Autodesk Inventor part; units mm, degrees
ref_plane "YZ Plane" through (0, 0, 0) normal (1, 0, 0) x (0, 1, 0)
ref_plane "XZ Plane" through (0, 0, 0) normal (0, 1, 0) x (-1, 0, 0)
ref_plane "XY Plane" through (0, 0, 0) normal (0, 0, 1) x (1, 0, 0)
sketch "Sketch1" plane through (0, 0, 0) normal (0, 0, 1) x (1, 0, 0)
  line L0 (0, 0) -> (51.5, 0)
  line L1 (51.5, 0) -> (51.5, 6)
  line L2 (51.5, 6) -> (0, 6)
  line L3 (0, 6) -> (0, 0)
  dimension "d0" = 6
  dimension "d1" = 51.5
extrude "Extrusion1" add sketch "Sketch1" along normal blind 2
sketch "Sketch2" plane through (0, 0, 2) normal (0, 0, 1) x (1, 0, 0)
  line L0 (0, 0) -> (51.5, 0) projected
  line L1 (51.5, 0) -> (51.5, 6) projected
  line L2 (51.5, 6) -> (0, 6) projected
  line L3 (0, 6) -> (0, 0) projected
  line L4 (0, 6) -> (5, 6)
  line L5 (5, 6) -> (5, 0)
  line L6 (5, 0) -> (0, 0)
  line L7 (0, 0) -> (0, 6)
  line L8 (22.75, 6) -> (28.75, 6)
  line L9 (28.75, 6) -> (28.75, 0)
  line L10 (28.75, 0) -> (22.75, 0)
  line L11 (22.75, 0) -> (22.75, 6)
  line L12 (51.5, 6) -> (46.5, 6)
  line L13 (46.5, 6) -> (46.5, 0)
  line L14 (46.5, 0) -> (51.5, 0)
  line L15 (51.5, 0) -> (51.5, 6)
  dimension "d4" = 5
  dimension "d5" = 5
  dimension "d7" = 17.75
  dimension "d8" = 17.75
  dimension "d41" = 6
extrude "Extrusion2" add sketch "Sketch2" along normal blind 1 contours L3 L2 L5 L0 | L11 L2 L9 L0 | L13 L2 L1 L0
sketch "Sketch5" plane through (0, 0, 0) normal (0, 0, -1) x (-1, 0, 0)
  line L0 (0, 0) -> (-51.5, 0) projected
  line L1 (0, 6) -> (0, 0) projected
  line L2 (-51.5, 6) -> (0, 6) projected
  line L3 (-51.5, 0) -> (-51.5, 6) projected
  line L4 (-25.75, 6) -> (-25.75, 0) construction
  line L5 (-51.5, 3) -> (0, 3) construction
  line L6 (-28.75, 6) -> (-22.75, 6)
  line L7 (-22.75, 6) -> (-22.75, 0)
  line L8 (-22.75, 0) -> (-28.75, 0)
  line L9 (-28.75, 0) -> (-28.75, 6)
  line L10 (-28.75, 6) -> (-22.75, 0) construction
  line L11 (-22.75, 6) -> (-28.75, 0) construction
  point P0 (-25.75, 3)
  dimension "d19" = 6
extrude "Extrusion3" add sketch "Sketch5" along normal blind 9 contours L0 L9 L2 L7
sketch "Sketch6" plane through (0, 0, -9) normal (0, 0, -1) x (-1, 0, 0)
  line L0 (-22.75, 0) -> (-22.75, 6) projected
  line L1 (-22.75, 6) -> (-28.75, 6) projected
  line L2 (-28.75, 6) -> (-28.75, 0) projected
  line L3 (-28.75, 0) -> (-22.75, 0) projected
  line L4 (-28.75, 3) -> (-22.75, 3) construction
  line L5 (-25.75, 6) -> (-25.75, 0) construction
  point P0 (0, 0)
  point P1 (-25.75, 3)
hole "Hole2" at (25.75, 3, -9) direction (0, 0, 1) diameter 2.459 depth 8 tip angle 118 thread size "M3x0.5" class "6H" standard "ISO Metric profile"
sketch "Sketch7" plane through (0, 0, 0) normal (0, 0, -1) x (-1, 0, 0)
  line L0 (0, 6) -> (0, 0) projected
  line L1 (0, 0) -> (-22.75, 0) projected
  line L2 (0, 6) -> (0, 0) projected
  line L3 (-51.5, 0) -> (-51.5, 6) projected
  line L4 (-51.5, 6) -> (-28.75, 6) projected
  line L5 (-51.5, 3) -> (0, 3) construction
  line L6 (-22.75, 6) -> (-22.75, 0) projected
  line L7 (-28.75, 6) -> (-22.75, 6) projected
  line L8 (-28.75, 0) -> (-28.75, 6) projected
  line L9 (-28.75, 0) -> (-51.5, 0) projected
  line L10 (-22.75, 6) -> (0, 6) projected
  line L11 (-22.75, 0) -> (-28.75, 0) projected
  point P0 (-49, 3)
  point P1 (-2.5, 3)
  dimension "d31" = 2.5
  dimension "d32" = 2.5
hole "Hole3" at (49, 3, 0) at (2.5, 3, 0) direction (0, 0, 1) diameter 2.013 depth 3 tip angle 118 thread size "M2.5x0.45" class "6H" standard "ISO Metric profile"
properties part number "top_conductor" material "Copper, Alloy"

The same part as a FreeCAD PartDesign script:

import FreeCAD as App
import Part
import Sketcher
from FreeCAD import Vector
Q = App.Units.Quantity

doc = App.newDocument("Part")
body = doc.addObject("PartDesign::Body", "Body")

# Sketch on XY plane
sketch1 = body.newObject("Sketcher::SketchObject", "Sketch")
sketch1.AttachmentSupport = (doc.getObject("XY_Plane"), [""])
sketch1.MapMode = "FlatFace"
sketch1.addGeometry([
    Part.LineSegment(Vector(0, 6, 0), Vector(0, 0, 0)),
    Part.LineSegment(Vector(0, 0, 0), Vector(51.5, 0, 0)),
    Part.LineSegment(Vector(51.5, 0, 0), Vector(51.5, 6, 0)),
    Part.LineSegment(Vector(51.5, 6, 0), Vector(0, 6, 0)),
], False)
sketch1.addConstraint([
    Sketcher.Constraint("Coincident", 0, 2, 1, 1),
    Sketcher.Constraint("Coincident", 1, 2, 2, 1),
    Sketcher.Constraint("Coincident", 2, 2, 3, 1),
    Sketcher.Constraint("Coincident", 3, 2, 0, 1),
    Sketcher.Constraint("Vertical", 0),
    Sketcher.Constraint("Horizontal", 1),
    Sketcher.Constraint("Vertical", 2),
    Sketcher.Constraint("Horizontal", 3),
    Sketcher.Constraint("Coincident", 0, 2, -1, 1),
    Sketcher.Constraint("DistanceY", 0, 2, 0, 1, Q("6 mm")),
    Sketcher.Constraint("DistanceX", 1, 1, 1, 2, Q("51.5 mm")),
])
pad1 = body.newObject("PartDesign::Pad", "Pad")
pad1.Profile = sketch1
pad1.Length = 2

# Sketch on XY plane
sketch2 = body.newObject("Sketcher::SketchObject", "Sketch001")
sketch2.AttachmentSupport = (doc.getObject("XY_Plane"), [""])
sketch2.MapMode = "FlatFace"
sketch2.AttachmentOffset = App.Placement(Vector(0, 0, 2), App.Rotation())
sketch2.addGeometry([
    Part.LineSegment(Vector(0, 6, 0), Vector(0, 0, 0)),  # 0
    Part.LineSegment(Vector(0, 0, 0), Vector(5, 0, 0)),  # 1
    Part.LineSegment(Vector(5, 0, 0), Vector(5, 6, 0)),  # 2
    Part.LineSegment(Vector(5, 6, 0), Vector(0, 6, 0)),  # 3
    Part.LineSegment(Vector(22.75, 6, 0), Vector(22.75, 0, 0)),  # 4
    Part.LineSegment(Vector(22.75, 0, 0), Vector(28.75, 0, 0)),  # 5
    Part.LineSegment(Vector(28.75, 0, 0), Vector(28.75, 6, 0)),  # 6
    Part.LineSegment(Vector(28.75, 6, 0), Vector(22.75, 6, 0)),  # 7
    Part.LineSegment(Vector(46.5, 6, 0), Vector(46.5, 0, 0)),  # 8
    Part.LineSegment(Vector(46.5, 0, 0), Vector(51.5, 0, 0)),  # 9
    Part.LineSegment(Vector(51.5, 0, 0), Vector(51.5, 6, 0)),  # 10
    Part.LineSegment(Vector(51.5, 6, 0), Vector(46.5, 6, 0)),  # 11
], False)
sketch2.addConstraint([
    Sketcher.Constraint("Coincident", 0, 2, 1, 1),
    Sketcher.Constraint("Coincident", 1, 2, 2, 1),
    Sketcher.Constraint("Coincident", 2, 2, 3, 1),
    Sketcher.Constraint("Coincident", 3, 2, 0, 1),
    Sketcher.Constraint("Coincident", 4, 2, 5, 1),
    Sketcher.Constraint("Coincident", 5, 2, 6, 1),
    Sketcher.Constraint("Coincident", 6, 2, 7, 1),
    Sketcher.Constraint("Coincident", 7, 2, 4, 1),
    Sketcher.Constraint("Coincident", 8, 2, 9, 1),
    Sketcher.Constraint("Coincident", 9, 2, 10, 1),
    Sketcher.Constraint("Coincident", 10, 2, 11, 1),
    Sketcher.Constraint("Coincident", 11, 2, 8, 1),
    Sketcher.Constraint("Vertical", 0),
    Sketcher.Constraint("Horizontal", 1),
    Sketcher.Constraint("Vertical", 2),
    Sketcher.Constraint("Horizontal", 3),
    Sketcher.Constraint("Vertical", 4),
    Sketcher.Constraint("Horizontal", 5),
    Sketcher.Constraint("Vertical", 6),
    Sketcher.Constraint("Horizontal", 7),
    Sketcher.Constraint("Vertical", 8),
    Sketcher.Constraint("Horizontal", 9),
    Sketcher.Constraint("Vertical", 10),
    Sketcher.Constraint("Horizontal", 11),
    Sketcher.Constraint("Coincident", 0, 2, -1, 1),
    Sketcher.Constraint("PointOnObject", 4, 2, -1),
    Sketcher.Constraint("PointOnObject", 8, 2, -1),
    Sketcher.Constraint("Horizontal", 3, 2, 6, 2),
    Sketcher.Constraint("Horizontal", 7, 2, 10, 2),
    Sketcher.Constraint("Equal", 3, 9),
    Sketcher.Constraint("Equal", 7, 0),
    Sketcher.Constraint("DistanceX", 1, 1, 1, 2, Q("5 mm")),
    Sketcher.Constraint("DistanceX", 5, 1, 5, 2, Q("6 mm")),
    Sketcher.Constraint("DistanceX", 1, 2, 4, 2, Q("17.75 mm")),
    Sketcher.Constraint("DistanceX", 5, 2, 8, 2, Q("17.75 mm")),
])
pad2 = body.newObject("PartDesign::Pad", "Pad001")
pad2.Profile = sketch2
pad2.Length = 1

# Sketch on XY plane
sketch3 = body.newObject("Sketcher::SketchObject", "Sketch002")
sketch3.AttachmentSupport = (doc.getObject("XY_Plane"), [""])
sketch3.MapMode = "FlatFace"
sketch3.addGeometry([
    Part.LineSegment(Vector(28.75, 0, 0), Vector(22.75, 0, 0)),
    Part.LineSegment(Vector(22.75, 0, 0), Vector(22.75, 6, 0)),
    Part.LineSegment(Vector(22.75, 6, 0), Vector(28.75, 6, 0)),
    Part.LineSegment(Vector(28.75, 6, 0), Vector(28.75, 0, 0)),
], False)
sketch3.addConstraint([
    Sketcher.Constraint("Coincident", 0, 2, 1, 1),
    Sketcher.Constraint("Coincident", 1, 2, 2, 1),
    Sketcher.Constraint("Coincident", 2, 2, 3, 1),
    Sketcher.Constraint("Coincident", 3, 2, 0, 1),
    Sketcher.Constraint("Horizontal", 0),
    Sketcher.Constraint("Vertical", 1),
    Sketcher.Constraint("Horizontal", 2),
    Sketcher.Constraint("Vertical", 3),
    Sketcher.Constraint("PointOnObject", 0, 2, -1),
    Sketcher.Constraint("Equal", 2, 1),
    Sketcher.Constraint("DistanceX", 0, 2, 0, 1, Q("6 mm")),
    Sketcher.Constraint("DistanceX", -1, 1, 0, 2, Q("22.75 mm")),
])
pad3 = body.newObject("PartDesign::Pad", "Pad002")
pad3.Profile = sketch3
pad3.Length = 9
pad3.Reversed = True

# Sketch on XY plane
sketch4 = body.newObject("Sketcher::SketchObject", "Sketch003")
sketch4.AttachmentSupport = (doc.getObject("XY_Plane"), [""])
sketch4.MapMode = "FlatFace"
sketch4.AttachmentOffset = App.Placement(Vector(0, 0, -9), App.Rotation())
sketch4.addGeometry(Part.Circle(Vector(25.75, 3, 0), Vector(0, 0, 1), 1.2295), False)
sketch4.addConstraint([
    Sketcher.Constraint("Diameter", 0, Q("2.459 mm")),
    Sketcher.Constraint("DistanceY", -1, 1, 0, 3, Q("3 mm")),
    Sketcher.Constraint("DistanceX", -1, 1, 0, 3, Q("25.75 mm")),
])
doc.recompute()
hole = body.newObject("PartDesign::Hole", "Hole")
hole.Profile = sketch4
hole.ThreadType = "None"
hole.Diameter = 2.459
hole.DepthType = "Dimension"
hole.Depth = 8
hole.DrillPoint = "Angled"
hole.DrillPointAngle = 118
hole.Reversed = True

# Sketch on XY plane
sketch5 = body.newObject("Sketcher::SketchObject", "Sketch004")
sketch5.AttachmentSupport = (doc.getObject("XY_Plane"), [""])
sketch5.MapMode = "FlatFace"
sketch5.addGeometry([
    Part.Circle(Vector(49, 3, 0), Vector(0, 0, 1), 1.0065),
    Part.Circle(Vector(2.5, 3, 0), Vector(0, 0, 1), 1.0065),
], False)
sketch5.addConstraint([
    Sketcher.Constraint("Equal", 0, 1),
    Sketcher.Constraint("Horizontal", 0, 3, 1, 3),
    Sketcher.Constraint("Diameter", 0, Q("2.013 mm")),
    Sketcher.Constraint("DistanceX", -1, 1, 0, 3, Q("49 mm")),
    Sketcher.Constraint("DistanceY", -1, 1, 0, 3, Q("3 mm")),
    Sketcher.Constraint("DistanceX", -1, 1, 1, 3, Q("2.5 mm")),
])
doc.recompute()
hole2 = body.newObject("PartDesign::Hole", "Hole001")
hole2.Profile = sketch5
hole2.ThreadType = "None"
hole2.Diameter = 2.013
hole2.DepthType = "Dimension"
hole2.Depth = 3
hole2.DrillPoint = "Angled"
hole2.DrillPointAngle = 118
hole2.Reversed = True

doc.recompute()
